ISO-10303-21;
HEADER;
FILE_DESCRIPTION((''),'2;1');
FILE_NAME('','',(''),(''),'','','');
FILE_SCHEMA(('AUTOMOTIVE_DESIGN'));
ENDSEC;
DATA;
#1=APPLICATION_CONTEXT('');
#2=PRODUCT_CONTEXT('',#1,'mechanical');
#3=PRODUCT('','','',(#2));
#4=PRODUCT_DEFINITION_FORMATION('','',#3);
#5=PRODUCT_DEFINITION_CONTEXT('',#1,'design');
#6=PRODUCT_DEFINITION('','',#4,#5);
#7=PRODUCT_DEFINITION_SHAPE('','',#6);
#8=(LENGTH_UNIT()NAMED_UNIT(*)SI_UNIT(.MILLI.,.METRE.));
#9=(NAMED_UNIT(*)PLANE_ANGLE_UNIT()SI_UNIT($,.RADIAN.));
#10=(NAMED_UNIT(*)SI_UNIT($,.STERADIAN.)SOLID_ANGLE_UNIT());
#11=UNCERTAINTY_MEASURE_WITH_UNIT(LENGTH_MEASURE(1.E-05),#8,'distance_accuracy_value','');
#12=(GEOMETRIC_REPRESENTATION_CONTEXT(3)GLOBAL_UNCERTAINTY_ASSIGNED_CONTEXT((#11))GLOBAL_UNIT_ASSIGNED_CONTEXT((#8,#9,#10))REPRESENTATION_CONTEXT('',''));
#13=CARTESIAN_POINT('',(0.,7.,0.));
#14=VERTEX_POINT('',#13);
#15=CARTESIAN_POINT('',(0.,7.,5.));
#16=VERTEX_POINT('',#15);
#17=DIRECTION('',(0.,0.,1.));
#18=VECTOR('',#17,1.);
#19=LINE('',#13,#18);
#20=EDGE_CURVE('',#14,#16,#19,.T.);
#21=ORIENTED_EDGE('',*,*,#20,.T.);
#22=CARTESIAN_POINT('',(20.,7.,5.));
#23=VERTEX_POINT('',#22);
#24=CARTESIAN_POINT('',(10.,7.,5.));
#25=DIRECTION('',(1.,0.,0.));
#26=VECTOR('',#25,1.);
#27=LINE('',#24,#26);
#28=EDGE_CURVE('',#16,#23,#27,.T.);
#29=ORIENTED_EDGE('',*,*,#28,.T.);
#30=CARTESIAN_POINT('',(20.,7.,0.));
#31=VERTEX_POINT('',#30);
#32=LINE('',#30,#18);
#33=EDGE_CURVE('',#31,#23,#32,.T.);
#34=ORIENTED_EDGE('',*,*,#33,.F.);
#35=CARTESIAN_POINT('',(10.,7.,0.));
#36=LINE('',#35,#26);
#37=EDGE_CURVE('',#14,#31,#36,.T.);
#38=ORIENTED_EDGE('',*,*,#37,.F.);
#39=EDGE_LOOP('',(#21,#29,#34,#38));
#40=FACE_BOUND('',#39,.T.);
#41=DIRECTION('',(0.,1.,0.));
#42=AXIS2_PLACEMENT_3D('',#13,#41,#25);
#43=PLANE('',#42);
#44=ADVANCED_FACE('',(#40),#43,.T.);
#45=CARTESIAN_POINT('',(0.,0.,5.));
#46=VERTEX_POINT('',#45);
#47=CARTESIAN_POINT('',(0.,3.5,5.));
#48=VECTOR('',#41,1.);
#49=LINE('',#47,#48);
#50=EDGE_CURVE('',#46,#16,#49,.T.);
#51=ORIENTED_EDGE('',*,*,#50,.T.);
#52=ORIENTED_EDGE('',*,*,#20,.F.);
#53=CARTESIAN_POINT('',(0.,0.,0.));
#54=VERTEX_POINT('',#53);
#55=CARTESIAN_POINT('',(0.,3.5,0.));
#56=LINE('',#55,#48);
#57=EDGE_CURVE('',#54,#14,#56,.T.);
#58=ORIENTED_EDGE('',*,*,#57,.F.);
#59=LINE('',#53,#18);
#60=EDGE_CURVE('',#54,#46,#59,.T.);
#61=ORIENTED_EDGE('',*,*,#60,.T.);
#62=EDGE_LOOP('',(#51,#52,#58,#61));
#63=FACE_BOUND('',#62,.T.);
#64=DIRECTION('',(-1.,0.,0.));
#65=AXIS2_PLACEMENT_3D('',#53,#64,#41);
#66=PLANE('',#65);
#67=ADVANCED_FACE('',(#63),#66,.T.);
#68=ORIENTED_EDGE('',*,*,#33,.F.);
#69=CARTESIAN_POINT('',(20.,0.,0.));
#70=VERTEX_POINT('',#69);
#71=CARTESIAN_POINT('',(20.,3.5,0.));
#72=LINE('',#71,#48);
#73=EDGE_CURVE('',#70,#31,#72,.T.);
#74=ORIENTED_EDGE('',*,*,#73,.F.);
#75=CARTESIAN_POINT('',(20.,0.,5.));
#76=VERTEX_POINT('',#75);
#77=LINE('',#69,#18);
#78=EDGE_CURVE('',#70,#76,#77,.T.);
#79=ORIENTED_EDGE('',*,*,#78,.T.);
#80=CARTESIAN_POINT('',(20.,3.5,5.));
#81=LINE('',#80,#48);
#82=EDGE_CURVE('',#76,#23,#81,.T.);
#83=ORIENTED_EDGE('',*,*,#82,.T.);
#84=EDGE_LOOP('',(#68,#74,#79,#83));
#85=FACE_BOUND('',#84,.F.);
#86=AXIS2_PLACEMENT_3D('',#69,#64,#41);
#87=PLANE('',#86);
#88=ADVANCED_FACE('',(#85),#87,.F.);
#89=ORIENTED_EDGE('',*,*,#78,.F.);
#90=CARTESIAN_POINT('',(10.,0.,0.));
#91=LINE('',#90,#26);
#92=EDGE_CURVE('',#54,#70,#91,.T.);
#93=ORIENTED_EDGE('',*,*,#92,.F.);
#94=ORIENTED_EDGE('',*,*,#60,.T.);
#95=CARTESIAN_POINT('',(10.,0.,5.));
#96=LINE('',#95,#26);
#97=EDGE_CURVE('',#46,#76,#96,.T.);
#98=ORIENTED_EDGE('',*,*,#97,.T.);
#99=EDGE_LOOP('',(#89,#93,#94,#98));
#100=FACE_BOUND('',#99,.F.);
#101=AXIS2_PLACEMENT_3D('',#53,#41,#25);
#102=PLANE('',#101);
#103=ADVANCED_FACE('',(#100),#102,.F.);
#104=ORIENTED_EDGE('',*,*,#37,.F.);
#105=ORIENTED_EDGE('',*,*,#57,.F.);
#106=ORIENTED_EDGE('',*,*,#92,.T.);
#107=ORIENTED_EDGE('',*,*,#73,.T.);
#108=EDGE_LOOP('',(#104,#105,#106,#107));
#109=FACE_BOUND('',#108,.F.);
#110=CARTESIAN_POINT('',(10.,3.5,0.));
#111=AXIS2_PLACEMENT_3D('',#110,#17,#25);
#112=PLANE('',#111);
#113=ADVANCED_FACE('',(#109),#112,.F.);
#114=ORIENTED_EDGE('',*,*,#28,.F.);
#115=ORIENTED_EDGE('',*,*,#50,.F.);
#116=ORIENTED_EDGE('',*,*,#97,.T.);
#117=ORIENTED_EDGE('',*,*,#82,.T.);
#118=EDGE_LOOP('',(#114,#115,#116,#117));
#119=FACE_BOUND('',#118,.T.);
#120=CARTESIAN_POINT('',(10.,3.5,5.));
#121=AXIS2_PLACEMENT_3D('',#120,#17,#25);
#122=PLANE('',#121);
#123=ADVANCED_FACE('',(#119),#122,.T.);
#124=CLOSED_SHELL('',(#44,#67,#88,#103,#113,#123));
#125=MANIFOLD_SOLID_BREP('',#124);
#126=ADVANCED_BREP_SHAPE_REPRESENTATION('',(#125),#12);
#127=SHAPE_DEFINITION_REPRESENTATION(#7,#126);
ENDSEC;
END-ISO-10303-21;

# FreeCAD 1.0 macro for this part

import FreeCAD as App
import Part
import Sketcher
from FreeCAD import Vector

doc = App.newDocument("Part")
body = doc.addObject("PartDesign::Body", "Body")

sketch1 = body.newObject("Sketcher::SketchObject", "Sketch")
sketch1.AttachmentSupport = (doc.getObject("XY_Plane"), [""])
sketch1.MapMode = "FlatFace"
sketch1.addGeometry(Part.LineSegment(Vector(0, 7, 0), Vector(0, 0, 0)), False)
sketch1.addGeometry(Part.LineSegment(Vector(0, 0, 0), Vector(20, 0, 0)), False)
sketch1.addGeometry(Part.LineSegment(Vector(20, 0, 0), Vector(20, 7, 0)), False)
sketch1.addGeometry(Part.LineSegment(Vector(20, 7, 0), Vector(0, 7, 0)), False)
sketch1.addConstraint(Sketcher.Constraint("Coincident", 0, 2, 1, 1))
sketch1.addConstraint(Sketcher.Constraint("Coincident", 1, 2, 2, 1))
sketch1.addConstraint(Sketcher.Constraint("Coincident", 2, 2, 3, 1))
sketch1.addConstraint(Sketcher.Constraint("Coincident", 3, 2, 0, 1))
sketch1.addConstraint(Sketcher.Constraint("Vertical", 0))
sketch1.addConstraint(Sketcher.Constraint("Horizontal", 1))
sketch1.addConstraint(Sketcher.Constraint("Vertical", 2))
sketch1.addConstraint(Sketcher.Constraint("Horizontal", 3))
sketch1.addConstraint(Sketcher.Constraint("Coincident", 0, 2, -1, 1))
sketch1.addConstraint(Sketcher.Constraint("DistanceX", 1, 1, 1, 2, 20.0))
sketch1.addConstraint(Sketcher.Constraint("DistanceY", 0, 2, 0, 1, 7.0))
pad1 = body.newObject("PartDesign::Pad", "Pad")
pad1.Profile = sketch1
pad1.Length = 5

doc.recompute()
